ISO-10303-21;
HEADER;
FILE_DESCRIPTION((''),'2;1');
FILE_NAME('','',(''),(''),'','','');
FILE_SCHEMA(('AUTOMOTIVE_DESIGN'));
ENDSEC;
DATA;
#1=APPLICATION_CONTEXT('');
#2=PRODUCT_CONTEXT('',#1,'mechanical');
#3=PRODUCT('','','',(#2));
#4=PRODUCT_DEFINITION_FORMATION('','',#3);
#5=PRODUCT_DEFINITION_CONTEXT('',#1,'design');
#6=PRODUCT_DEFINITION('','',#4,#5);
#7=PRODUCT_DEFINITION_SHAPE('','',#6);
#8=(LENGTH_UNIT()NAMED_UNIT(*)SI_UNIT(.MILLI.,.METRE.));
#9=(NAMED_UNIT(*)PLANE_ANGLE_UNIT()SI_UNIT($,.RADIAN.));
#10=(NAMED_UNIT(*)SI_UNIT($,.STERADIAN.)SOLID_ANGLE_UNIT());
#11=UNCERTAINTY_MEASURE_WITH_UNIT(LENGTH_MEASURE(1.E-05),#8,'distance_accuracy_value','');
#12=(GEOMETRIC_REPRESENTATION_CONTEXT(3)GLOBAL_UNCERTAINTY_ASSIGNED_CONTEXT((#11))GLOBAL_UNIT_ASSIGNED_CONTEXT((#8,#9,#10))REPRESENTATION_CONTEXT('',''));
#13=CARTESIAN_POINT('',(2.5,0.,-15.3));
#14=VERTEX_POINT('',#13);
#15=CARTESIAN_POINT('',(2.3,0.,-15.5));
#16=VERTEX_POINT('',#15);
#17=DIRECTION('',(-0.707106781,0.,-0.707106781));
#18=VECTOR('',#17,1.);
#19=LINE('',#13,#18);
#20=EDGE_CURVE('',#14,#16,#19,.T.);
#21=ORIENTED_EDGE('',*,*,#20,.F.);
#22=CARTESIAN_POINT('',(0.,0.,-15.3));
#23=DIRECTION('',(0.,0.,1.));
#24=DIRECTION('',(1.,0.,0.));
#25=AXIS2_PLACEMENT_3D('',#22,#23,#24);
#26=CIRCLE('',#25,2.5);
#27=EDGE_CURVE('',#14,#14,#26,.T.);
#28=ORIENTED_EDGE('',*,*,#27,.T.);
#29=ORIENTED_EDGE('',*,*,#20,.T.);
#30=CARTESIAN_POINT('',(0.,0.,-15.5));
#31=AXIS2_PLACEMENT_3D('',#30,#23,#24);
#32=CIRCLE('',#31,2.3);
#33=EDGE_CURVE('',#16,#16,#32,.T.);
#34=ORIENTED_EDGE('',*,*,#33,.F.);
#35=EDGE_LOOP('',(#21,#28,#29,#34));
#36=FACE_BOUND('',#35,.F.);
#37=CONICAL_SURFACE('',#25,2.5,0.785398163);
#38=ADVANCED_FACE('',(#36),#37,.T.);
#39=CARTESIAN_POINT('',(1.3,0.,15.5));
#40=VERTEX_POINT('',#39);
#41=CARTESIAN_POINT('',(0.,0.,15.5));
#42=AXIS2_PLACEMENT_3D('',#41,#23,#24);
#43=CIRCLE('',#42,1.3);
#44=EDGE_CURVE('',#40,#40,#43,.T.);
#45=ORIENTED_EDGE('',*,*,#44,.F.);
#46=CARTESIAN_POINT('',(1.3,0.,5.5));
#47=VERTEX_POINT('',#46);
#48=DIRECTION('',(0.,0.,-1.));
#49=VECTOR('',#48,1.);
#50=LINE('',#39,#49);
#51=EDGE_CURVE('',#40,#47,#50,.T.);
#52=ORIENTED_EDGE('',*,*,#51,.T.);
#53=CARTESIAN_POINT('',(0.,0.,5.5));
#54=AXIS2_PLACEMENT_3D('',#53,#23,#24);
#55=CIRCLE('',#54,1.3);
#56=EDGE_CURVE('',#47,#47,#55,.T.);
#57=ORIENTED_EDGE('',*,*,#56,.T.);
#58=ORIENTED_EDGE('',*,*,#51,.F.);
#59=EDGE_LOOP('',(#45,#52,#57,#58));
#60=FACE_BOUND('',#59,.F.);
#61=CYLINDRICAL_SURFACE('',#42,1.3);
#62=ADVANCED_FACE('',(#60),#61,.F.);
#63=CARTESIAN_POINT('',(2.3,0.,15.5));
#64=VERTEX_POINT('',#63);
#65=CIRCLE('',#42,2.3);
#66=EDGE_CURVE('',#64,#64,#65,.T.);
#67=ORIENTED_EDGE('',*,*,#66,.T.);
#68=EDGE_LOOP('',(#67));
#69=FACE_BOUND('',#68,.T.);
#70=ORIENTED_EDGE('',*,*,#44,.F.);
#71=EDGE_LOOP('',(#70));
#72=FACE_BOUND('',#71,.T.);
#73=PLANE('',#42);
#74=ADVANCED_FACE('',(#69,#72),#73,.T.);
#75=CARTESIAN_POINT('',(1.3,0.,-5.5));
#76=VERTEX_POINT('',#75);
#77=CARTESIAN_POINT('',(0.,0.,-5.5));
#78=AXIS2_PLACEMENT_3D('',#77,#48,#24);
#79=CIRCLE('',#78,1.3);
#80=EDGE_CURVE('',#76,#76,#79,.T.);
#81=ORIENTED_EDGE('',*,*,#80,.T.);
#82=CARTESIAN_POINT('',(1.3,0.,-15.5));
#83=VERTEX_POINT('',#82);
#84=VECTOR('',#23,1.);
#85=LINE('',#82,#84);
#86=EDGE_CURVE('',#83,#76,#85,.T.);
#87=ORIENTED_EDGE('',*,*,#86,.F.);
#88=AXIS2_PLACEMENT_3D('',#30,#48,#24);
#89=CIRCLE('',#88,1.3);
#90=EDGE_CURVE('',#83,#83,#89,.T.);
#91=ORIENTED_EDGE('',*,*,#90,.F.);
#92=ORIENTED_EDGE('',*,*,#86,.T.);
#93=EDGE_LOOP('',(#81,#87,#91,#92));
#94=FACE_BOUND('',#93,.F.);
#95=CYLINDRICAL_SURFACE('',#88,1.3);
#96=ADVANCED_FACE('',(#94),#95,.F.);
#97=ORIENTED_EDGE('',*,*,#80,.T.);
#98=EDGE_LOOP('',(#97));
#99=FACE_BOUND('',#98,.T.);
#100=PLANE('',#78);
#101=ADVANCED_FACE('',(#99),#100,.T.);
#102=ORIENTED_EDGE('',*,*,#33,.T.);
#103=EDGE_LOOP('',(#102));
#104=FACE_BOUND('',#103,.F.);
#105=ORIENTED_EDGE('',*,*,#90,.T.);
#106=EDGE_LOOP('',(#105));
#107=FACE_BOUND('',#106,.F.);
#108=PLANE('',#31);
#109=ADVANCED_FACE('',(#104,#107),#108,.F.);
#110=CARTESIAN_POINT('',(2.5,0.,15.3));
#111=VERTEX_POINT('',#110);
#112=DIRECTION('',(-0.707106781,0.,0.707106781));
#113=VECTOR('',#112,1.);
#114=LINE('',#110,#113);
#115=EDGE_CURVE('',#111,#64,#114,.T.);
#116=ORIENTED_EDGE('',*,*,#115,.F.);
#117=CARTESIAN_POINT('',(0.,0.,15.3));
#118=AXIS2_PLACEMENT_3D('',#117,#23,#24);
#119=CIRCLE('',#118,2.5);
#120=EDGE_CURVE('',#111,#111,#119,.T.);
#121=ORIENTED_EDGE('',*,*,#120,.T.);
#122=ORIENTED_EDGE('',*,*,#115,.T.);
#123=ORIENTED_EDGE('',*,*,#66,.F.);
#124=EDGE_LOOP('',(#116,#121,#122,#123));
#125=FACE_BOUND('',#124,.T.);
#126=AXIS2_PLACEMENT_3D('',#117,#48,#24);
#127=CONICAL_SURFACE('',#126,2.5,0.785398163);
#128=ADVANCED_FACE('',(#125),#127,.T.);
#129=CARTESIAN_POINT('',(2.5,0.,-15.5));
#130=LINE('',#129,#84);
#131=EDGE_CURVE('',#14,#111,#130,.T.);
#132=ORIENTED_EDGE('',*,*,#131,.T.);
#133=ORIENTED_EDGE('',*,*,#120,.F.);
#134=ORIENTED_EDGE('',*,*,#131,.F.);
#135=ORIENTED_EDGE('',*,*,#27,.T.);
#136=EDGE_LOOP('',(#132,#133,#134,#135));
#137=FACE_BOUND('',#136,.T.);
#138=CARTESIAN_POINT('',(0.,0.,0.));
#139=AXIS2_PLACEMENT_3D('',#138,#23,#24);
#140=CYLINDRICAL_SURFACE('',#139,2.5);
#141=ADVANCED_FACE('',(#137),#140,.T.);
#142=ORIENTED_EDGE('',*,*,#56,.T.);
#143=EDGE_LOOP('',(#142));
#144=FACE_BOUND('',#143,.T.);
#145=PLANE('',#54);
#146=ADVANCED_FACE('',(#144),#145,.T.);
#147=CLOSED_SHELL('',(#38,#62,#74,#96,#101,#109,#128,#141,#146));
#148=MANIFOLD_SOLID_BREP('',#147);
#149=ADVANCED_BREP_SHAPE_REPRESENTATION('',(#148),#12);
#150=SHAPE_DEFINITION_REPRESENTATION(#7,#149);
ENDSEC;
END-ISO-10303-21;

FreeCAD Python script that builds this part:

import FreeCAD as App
import Part
import Sketcher

V = App.Vector
Q = App.Units.Quantity


def edges_at(feature, points):
    """Names of the edges that pass closest to the given points."""
    edges = feature.Shape.Edges
    near = lambda p: min(range(len(edges)), key=lambda i: edges[i].distToShape(Part.Vertex(*p))[0])
    return sorted({f"Edge{near(p) + 1}" for p in points})

doc = App.newDocument("Part")
body = doc.addObject("PartDesign::Body", "Body")

# Sketch on XY plane
sketch1 = doc.addObject("Sketcher::SketchObject", "Sketch")
body.addObject(sketch1)
sketch1.AttachmentSupport = (doc.XY_Plane, [""])
sketch1.MapMode = "FlatFace"
sketch1.addGeometry(Part.Circle(V(0, 0, 0), V(0, 0, 1), 2.5), False)
sketch1.addConstraint([
    Sketcher.Constraint("Coincident", 0, 3, -1, 1),
    Sketcher.Constraint("Diameter", 0, Q("5 mm")),
])
pad1 = doc.addObject("PartDesign::Pad", "Pad")
body.addObject(pad1)
pad1.Profile = sketch1
pad1.Length = 31
pad1.Midplane = True

# Sketch on XY plane
sketch2 = doc.addObject("Sketcher::SketchObject", "Sketch001")
body.addObject(sketch2)
sketch2.AttachmentSupport = (doc.XY_Plane, [""])
sketch2.MapMode = "FlatFace"
sketch2.AttachmentOffset = App.Placement(V(0, 0, 15.5), App.Rotation())
sketch2.addGeometry(Part.Circle(V(0, 0, 0), V(0, 0, 1), 1.3), False)
sketch2.addConstraint([
    Sketcher.Constraint("Coincident", 0, 3, -1, 1),
    Sketcher.Constraint("Diameter", 0, Q("2.6 mm")),
])
pocket1 = doc.addObject("PartDesign::Pocket", "Pocket")
body.addObject(pocket1)
pocket1.Profile = sketch2
pocket1.Length = 10

# Sketch on XY plane
sketch3 = doc.addObject("Sketcher::SketchObject", "Sketch002")
body.addObject(sketch3)
sketch3.AttachmentSupport = (doc.XY_Plane, [""])
sketch3.MapMode = "FlatFace"
sketch3.AttachmentOffset = App.Placement(V(0, 0, -15.5), App.Rotation())
sketch3.addGeometry(Part.Circle(V(0, 0, 0), V(0, 0, 1), 1.3), False)
sketch3.addConstraint([
    Sketcher.Constraint("Coincident", 0, 3, -1, 1),
    Sketcher.Constraint("Diameter", 0, Q("2.6 mm")),
])
pocket2 = doc.addObject("PartDesign::Pocket", "Pocket001")
body.addObject(pocket2)
pocket2.Profile = sketch3
pocket2.Length = 10
pocket2.Reversed = True
doc.recompute()

chamfer = doc.addObject("PartDesign::Chamfer", "Chamfer")
body.addObject(chamfer)
chamfer.Base = (pocket2, edges_at(pocket2, [(-2.5, 0, -15.5), (2.5, 0, 0), (-2.5, 0, 15.5)]))
chamfer.Size = 0.2

doc.recompute()
